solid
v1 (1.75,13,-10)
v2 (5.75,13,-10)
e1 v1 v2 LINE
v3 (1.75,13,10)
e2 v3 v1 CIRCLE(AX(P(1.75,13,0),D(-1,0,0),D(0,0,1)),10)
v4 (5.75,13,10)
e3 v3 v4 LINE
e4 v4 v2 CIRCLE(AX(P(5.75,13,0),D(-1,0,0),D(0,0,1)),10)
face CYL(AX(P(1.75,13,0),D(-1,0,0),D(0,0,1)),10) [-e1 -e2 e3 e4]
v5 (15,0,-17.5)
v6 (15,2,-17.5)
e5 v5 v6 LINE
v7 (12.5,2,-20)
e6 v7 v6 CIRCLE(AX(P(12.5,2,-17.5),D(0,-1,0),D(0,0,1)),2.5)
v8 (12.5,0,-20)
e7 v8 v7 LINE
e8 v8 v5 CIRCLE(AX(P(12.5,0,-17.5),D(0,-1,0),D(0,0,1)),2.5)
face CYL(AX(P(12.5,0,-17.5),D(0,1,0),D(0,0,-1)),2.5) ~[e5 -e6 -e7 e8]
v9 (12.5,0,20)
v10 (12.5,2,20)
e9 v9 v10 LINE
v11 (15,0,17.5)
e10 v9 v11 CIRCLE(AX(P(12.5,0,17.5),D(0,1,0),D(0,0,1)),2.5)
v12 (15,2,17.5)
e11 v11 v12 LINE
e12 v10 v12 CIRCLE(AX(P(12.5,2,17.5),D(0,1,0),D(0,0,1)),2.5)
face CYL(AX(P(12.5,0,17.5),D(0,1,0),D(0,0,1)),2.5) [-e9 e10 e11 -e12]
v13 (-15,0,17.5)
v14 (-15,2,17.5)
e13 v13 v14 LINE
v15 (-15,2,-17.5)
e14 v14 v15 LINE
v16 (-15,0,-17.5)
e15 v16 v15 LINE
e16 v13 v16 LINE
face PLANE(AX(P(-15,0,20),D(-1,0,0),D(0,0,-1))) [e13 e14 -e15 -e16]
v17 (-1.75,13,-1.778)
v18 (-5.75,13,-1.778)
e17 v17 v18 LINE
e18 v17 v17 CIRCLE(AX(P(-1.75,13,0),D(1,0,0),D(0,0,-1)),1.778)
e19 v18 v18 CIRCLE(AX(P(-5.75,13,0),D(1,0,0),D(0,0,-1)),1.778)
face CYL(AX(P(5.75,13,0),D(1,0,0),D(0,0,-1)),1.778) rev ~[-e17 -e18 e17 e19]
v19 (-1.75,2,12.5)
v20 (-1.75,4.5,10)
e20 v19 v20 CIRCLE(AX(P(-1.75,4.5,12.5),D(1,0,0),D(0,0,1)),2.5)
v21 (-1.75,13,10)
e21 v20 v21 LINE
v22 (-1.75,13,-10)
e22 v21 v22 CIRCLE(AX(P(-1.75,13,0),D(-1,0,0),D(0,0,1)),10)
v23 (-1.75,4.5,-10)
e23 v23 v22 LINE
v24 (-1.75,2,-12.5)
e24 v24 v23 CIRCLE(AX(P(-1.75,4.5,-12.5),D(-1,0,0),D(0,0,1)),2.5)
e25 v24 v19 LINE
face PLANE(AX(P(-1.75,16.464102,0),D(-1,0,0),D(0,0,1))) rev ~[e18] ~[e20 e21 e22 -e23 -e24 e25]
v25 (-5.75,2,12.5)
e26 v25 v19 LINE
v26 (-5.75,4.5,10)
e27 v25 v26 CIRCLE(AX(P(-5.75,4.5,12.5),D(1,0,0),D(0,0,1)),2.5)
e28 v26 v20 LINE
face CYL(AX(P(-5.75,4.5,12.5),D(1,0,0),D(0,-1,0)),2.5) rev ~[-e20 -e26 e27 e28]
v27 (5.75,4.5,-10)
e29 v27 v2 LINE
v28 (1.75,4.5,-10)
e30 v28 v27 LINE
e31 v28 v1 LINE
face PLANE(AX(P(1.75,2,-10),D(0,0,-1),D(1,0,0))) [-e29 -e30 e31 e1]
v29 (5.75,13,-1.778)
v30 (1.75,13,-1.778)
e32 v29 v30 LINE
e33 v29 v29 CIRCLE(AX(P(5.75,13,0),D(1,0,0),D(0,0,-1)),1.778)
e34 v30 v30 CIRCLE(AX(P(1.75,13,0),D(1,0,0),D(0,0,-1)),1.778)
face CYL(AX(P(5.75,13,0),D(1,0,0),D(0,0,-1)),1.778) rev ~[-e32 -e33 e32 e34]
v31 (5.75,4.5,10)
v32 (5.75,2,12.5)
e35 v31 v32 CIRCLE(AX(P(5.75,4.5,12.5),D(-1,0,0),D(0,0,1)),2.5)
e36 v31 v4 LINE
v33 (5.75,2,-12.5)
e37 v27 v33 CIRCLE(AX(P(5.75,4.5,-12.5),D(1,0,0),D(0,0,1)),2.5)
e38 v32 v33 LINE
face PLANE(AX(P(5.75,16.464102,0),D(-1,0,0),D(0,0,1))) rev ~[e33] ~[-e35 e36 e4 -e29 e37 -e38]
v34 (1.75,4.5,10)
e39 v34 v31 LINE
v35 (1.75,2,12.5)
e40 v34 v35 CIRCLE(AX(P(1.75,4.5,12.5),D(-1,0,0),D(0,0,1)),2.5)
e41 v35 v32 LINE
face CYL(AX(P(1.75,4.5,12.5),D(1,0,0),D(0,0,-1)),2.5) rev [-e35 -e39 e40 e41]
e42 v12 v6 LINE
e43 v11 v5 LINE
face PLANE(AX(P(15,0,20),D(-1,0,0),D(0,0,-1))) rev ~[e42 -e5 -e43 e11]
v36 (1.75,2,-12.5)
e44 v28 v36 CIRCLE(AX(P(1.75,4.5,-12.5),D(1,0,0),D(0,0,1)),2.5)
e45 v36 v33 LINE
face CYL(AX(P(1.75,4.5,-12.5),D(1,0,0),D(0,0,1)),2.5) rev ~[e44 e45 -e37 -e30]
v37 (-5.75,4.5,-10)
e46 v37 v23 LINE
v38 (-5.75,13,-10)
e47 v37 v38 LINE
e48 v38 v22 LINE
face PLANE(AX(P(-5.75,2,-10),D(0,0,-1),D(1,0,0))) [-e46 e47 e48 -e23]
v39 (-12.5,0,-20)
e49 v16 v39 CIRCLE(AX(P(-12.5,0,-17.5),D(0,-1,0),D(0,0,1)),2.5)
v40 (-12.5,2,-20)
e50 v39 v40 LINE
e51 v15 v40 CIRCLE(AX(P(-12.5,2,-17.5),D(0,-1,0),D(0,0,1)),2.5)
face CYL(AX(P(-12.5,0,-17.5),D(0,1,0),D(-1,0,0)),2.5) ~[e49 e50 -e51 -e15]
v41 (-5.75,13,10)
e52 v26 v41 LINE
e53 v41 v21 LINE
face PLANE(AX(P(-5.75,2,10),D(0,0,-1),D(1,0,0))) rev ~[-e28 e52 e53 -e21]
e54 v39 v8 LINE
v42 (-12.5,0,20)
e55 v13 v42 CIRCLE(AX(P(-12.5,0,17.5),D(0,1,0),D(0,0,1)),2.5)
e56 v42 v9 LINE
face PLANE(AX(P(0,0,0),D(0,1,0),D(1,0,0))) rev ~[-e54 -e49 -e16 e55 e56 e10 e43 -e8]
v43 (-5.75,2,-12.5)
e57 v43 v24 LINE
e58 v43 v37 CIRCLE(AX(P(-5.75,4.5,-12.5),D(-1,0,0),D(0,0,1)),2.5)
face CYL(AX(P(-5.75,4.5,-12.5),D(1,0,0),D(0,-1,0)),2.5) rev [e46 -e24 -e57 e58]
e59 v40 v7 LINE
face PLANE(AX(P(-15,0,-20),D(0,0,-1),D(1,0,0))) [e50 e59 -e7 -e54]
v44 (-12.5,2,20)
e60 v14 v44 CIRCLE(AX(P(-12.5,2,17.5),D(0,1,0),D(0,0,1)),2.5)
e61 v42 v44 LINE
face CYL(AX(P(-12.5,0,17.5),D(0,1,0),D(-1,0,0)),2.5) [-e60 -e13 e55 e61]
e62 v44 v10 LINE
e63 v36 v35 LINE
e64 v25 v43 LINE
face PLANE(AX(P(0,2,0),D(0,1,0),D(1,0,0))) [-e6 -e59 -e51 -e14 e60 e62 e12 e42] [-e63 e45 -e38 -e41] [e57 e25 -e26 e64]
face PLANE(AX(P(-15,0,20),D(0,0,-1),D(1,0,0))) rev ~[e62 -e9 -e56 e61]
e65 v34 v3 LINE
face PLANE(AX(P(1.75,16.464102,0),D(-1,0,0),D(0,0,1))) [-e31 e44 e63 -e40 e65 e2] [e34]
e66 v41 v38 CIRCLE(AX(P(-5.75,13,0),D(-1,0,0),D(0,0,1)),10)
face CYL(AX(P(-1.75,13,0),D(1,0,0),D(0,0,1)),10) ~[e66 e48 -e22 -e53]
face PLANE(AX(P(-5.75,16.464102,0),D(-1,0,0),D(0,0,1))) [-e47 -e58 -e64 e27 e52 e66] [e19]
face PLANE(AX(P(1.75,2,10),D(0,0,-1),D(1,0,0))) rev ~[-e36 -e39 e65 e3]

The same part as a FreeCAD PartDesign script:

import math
import FreeCAD as App
import Part
import Sketcher
from FreeCAD import Vector
Q = App.Units.Quantity


def edges_at(feature, points):
    """Names of the edges that pass closest to the given points."""
    edges = feature.Shape.Edges
    near = lambda p: min(range(len(edges)), key=lambda i: edges[i].distToShape(Part.Vertex(*p))[0])
    return sorted({f"Edge{near(p) + 1}" for p in points})


def add_polygon(sketch, points):
    """Adds a closed chain of lines whose ends are joined by coincident constraints."""
    first, n = sketch.GeometryCount, len(points)
    for a, b in zip(points, points[1:] + points[:1]):
        sketch.addGeometry(Part.LineSegment(App.Vector(*a, 0), App.Vector(*b, 0)), False)
    for i in range(n):
        sketch.addConstraint(Sketcher.Constraint("Coincident", first + i, 2, first + (i + 1) % n, 1))

doc = App.newDocument("Part")
body = doc.addObject("PartDesign::Body", "Body")

sketch1 = doc.addObject("Sketcher::SketchObject", "Sketch")
body.addObject(sketch1)
sketch1.AttachmentSupport = (doc.XZ_Plane, [""])
sketch1.MapMode = "FlatFace"
add_polygon(sketch1, [(-15, -20), (-15, 20), (15, 20), (15, -20)])
sketch1.addConstraint([
    Sketcher.Constraint("Vertical", 0),
    Sketcher.Constraint("Horizontal", 1),
    Sketcher.Constraint("Vertical", 2),
    Sketcher.Constraint("Horizontal", 3),
    Sketcher.Constraint("Symmetric", 0, 2, 2, 2, -1, 1),
    Sketcher.Constraint("DistanceX", 1, 1, 1, 2, Q("30 mm")),
    Sketcher.Constraint("DistanceY", 0, 1, 0, 2, Q("40 mm")),
])
pad1 = doc.addObject("PartDesign::Pad", "Pad")
body.addObject(pad1)
pad1.Profile = sketch1
pad1.Length = 2
pad1.Reversed = True

sketch2 = doc.addObject("Sketcher::SketchObject", "Sketch001")
body.addObject(sketch2)
sketch2.AttachmentSupport = (doc.XZ_Plane, [""])
sketch2.MapMode = "FlatFace"
sketch2.AttachmentOffset = App.Placement(Vector(0, 0, -2), App.Rotation())
add_polygon(sketch2, [(1.75, -10), (1.75, 10), (5.75, 10), (5.75, -10)])
add_polygon(sketch2, [(-5.75, -10), (-5.75, 10), (-1.75, 10), (-1.75, -10)])
sketch2.addConstraint([
    Sketcher.Constraint("Vertical", 0),
    Sketcher.Constraint("Horizontal", 1),
    Sketcher.Constraint("Vertical", 2),
    Sketcher.Constraint("Horizontal", 3),
    Sketcher.Constraint("Vertical", 4),
    Sketcher.Constraint("Horizontal", 5),
    Sketcher.Constraint("Vertical", 6),
    Sketcher.Constraint("Horizontal", 7),
    Sketcher.Constraint("Symmetric", 2, 2, 4, 2, -1, 1),
    Sketcher.Constraint("Symmetric", 0, 2, 6, 2, -1, 1),
    Sketcher.Constraint("Horizontal", 1, 2, 4, 2),
    Sketcher.Constraint("DistanceX", 1, 1, 1, 2, Q("4 mm")),
    Sketcher.Constraint("DistanceY", 0, 1, 0, 2, Q("20 mm")),
    Sketcher.Constraint("DistanceX", 4, 2, 0, 2, Q("7.5 mm")),
])
pad2 = doc.addObject("PartDesign::Pad", "Pad001")
body.addObject(pad2)
pad2.Profile = sketch2
pad2.Length = 11
pad2.Reversed = True

sketch3 = doc.addObject("Sketcher::SketchObject", "Sketch002")
body.addObject(sketch3)
sketch3.AttachmentSupport = (doc.YZ_Plane, [""])
sketch3.MapMode = "FlatFace"
sketch3.AttachmentOffset = App.Placement(Vector(0, 0, -1.75), App.Rotation())
sketch3.addGeometry([
    Part.LineSegment(Vector(13, -10, 0), Vector(13, 10, 0)),
    Part.ArcOfCircle(Part.Circle(Vector(13, 0, 0), Vector(0, 0, 1), 10), math.radians(-90), math.radians(90)),
], False)
sketch3.addConstraint([
    Sketcher.Constraint("Coincident", 0, 1, 1, 1),
    Sketcher.Constraint("Coincident", 1, 2, 0, 2),
    Sketcher.Constraint("Vertical", 0),
    Sketcher.Constraint("PointOnObject", 1, 3, -1),
    Sketcher.Constraint("Vertical", 1, 3, 0, 1),
    Sketcher.Constraint("Radius", 1, Q("10 mm")),
    Sketcher.Constraint("DistanceX", -1, 1, 1, 3, Q("13 mm")),
])
pad3 = doc.addObject("PartDesign::Pad", "Pad002")
body.addObject(pad3)
pad3.Profile = sketch3
pad3.Length = 4
pad3.Reversed = True

sketch4 = doc.addObject("Sketcher::SketchObject", "Sketch003")
body.addObject(sketch4)
sketch4.AttachmentSupport = (doc.YZ_Plane, [""])
sketch4.MapMode = "FlatFace"
sketch4.AttachmentOffset = App.Placement(Vector(0, 0, 1.75), App.Rotation())
sketch4.addGeometry([
    Part.LineSegment(Vector(13, 10, 0), Vector(13, -10, 0)),
    Part.ArcOfCircle(Part.Circle(Vector(13, 0, 0), Vector(0, 0, 1), 10), math.radians(-90), math.radians(90)),
], False)
sketch4.addConstraint([
    Sketcher.Constraint("Coincident", 0, 1, 1, 2),
    Sketcher.Constraint("Coincident", 1, 1, 0, 2),
    Sketcher.Constraint("Vertical", 0),
    Sketcher.Constraint("PointOnObject", 1, 3, -1),
    Sketcher.Constraint("Vertical", 1, 3, 0, 1),
    Sketcher.Constraint("Radius", 1, Q("10 mm")),
    Sketcher.Constraint("DistanceX", -1, 1, 1, 3, Q("13 mm")),
])
pad4 = doc.addObject("PartDesign::Pad", "Pad003")
body.addObject(pad4)
pad4.Profile = sketch4
pad4.Length = 4

sketch5 = doc.addObject("Sketcher::SketchObject", "Sketch004")
body.addObject(sketch5)
sketch5.AttachmentSupport = (doc.YZ_Plane, [""])
sketch5.MapMode = "FlatFace"
sketch5.AttachmentOffset = App.Placement(Vector(0, 0, 5.75), App.Rotation())
sketch5.addGeometry(Part.Circle(Vector(13, 0, 0), Vector(0, 0, 1), 1.778), False)
sketch5.addConstraint([
    Sketcher.Constraint("PointOnObject", 0, 3, -1),
    Sketcher.Constraint("Diameter", 0, Q("3.556 mm")),
    Sketcher.Constraint("DistanceX", -1, 1, 0, 3, Q("13 mm")),
])
pocket1 = doc.addObject("PartDesign::Pocket", "Pocket")
body.addObject(pocket1)
pocket1.Profile = sketch5
pocket1.Length = 11.5
doc.recompute()

fillet = doc.addObject("PartDesign::Fillet", "Fillet")
body.addObject(fillet)
fillet.Base = (pocket1, edges_at(pocket1, [
    (3.75, 2, 10),
    (3.75, 2, -10),
    (-3.75, 2, -10),
    (-3.75, 2, 10),
    (-15, 1, -20),
    (15, 1, -20),
    (15, 1, 20),
    (-15, 1, 20),
]))
fillet.Radius = 2.5

doc.recompute()
